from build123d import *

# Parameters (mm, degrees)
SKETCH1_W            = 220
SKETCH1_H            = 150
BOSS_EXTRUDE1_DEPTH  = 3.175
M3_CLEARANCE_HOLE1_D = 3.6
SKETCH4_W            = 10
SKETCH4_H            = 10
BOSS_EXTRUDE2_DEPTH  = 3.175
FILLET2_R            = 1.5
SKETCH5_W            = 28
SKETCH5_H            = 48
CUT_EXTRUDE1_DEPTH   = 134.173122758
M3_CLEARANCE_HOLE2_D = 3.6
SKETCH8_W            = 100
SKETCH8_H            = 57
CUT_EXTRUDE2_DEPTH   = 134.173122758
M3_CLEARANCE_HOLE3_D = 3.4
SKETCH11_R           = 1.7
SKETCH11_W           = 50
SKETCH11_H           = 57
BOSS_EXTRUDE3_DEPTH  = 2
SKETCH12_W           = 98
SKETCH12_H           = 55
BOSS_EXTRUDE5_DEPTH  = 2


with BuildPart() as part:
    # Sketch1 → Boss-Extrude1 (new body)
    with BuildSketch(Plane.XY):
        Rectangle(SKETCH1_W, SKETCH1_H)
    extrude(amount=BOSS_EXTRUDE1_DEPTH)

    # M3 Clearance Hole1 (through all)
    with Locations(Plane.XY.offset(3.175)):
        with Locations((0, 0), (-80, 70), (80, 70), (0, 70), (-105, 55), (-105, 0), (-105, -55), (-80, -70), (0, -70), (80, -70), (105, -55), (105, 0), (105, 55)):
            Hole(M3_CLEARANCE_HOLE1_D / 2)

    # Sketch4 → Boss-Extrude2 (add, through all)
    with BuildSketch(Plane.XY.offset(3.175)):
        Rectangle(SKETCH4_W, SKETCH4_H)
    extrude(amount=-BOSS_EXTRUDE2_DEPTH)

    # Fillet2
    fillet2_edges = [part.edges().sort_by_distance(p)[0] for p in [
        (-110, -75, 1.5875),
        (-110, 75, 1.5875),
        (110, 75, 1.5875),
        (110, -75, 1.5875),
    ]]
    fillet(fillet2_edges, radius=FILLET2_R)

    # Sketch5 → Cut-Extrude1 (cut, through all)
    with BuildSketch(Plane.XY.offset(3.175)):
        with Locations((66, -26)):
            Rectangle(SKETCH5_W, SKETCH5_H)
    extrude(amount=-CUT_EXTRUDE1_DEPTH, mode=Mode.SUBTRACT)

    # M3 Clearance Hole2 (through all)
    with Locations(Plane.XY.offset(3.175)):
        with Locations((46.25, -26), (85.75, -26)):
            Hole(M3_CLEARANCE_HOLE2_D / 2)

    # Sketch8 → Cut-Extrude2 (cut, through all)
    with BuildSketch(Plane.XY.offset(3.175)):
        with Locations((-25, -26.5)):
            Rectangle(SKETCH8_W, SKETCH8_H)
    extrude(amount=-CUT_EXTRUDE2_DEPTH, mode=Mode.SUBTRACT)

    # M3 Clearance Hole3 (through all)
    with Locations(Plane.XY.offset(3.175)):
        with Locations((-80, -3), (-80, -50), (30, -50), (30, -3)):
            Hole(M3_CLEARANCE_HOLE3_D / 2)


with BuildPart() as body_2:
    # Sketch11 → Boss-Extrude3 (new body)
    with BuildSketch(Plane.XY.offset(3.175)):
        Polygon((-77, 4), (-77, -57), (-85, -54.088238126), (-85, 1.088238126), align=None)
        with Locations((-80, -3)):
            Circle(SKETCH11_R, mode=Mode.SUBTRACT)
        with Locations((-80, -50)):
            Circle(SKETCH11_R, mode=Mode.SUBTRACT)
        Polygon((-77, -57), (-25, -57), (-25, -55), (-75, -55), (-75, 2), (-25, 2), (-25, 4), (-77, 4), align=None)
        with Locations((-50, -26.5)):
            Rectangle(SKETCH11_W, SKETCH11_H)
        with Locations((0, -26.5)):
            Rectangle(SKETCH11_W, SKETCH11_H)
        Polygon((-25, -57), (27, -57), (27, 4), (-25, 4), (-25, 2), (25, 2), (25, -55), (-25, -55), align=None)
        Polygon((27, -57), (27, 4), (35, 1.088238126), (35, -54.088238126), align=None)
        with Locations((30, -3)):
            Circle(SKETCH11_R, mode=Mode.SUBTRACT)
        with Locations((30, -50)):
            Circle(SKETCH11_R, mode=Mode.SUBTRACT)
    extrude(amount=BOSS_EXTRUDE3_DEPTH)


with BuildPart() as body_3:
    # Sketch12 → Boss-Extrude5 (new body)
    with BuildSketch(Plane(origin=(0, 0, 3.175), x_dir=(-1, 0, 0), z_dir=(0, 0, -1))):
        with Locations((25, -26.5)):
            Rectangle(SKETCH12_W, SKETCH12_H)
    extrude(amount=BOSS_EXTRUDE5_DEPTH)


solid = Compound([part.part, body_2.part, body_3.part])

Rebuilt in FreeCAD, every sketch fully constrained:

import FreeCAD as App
import Part
import Sketcher
Q = App.Units.Quantity


def edges_at(feature, points):
    """Names of the edges that pass closest to the given points."""
    edges = feature.Shape.Edges
    near = lambda p: min(range(len(edges)), key=lambda i: edges[i].distToShape(Part.Vertex(*p))[0])
    return sorted({f"Edge{near(p) + 1}" for p in points})


def add_polygon(sketch, points):
    """Adds a closed chain of lines whose ends are joined by coincident constraints."""
    first, n = sketch.GeometryCount, len(points)
    for a, b in zip(points, points[1:] + points[:1]):
        sketch.addGeometry(Part.LineSegment(App.Vector(*a, 0), App.Vector(*b, 0)), False)
    for i in range(n):
        sketch.addConstraint(Sketcher.Constraint("Coincident", first + i, 2, first + (i + 1) % n, 1))

doc = App.newDocument("Part")
body = doc.addObject("PartDesign::Body", "Body")

# Sketch on XY plane
sketch1 = body.newObject("Sketcher::SketchObject", "Sketch")
sketch1.AttachmentSupport = (doc.getObject("XY_Plane"), [""])
sketch1.MapMode = "FlatFace"
add_polygon(sketch1, [(-110, 75), (-110, -75), (110, -75), (110, 75)])  # lines 0-3
sketch1.addConstraint([
    Sketcher.Constraint("Vertical", 0),
    Sketcher.Constraint("Horizontal", 1),
    Sketcher.Constraint("Vertical", 2),
    Sketcher.Constraint("Horizontal", 3),
    Sketcher.Constraint("Symmetric", 0, 2, 2, 2, -1, 1),
    Sketcher.Constraint("DistanceX", 1, 1, 1, 2, 220.0),
    Sketcher.Constraint("DistanceY", 0, 2, 0, 1, 150.0),
])
pad1 = body.newObject("PartDesign::Pad", "Pad")
pad1.Profile = sketch1
pad1.Length = 3.175

# Sketch on XY plane
sketch2 = body.newObject("Sketcher::SketchObject", "Sketch001")
sketch2.AttachmentSupport = (doc.getObject("XY_Plane"), [""])
sketch2.MapMode = "FlatFace"
sketch2.AttachmentOffset = App.Placement(App.Vector(0, 0, 3.175), App.Rotation())
sketch2.addGeometry([
    Part.Circle(App.Vector(0, 0, 0), App.Vector(0, 0, 1), 1.8),  # 0
    Part.Circle(App.Vector(-80, 70, 0), App.Vector(0, 0, 1), 1.8),  # 1
    Part.Circle(App.Vector(80, 70, 0), App.Vector(0, 0, 1), 1.8),  # 2
    Part.Circle(App.Vector(0, 70, 0), App.Vector(0, 0, 1), 1.8),  # 3
    Part.Circle(App.Vector(-105, 55, 0), App.Vector(0, 0, 1), 1.8),  # 4
    Part.Circle(App.Vector(-105, 0, 0), App.Vector(0, 0, 1), 1.8),  # 5
    Part.Circle(App.Vector(-105, -55, 0), App.Vector(0, 0, 1), 1.8),  # 6
    Part.Circle(App.Vector(-80, -70, 0), App.Vector(0, 0, 1), 1.8),  # 7
    Part.Circle(App.Vector(0, -70, 0), App.Vector(0, 0, 1), 1.8),  # 8
    Part.Circle(App.Vector(80, -70, 0), App.Vector(0, 0, 1), 1.8),  # 9
    Part.Circle(App.Vector(105, -55, 0), App.Vector(0, 0, 1), 1.8),  # 10
    Part.Circle(App.Vector(105, 0, 0), App.Vector(0, 0, 1), 1.8),  # 11
    Part.Circle(App.Vector(105, 55, 0), App.Vector(0, 0, 1), 1.8),  # 12
], False)
sketch2.addConstraint([
    Sketcher.Constraint("Coincident", 0, 3, -1, 1),
    Sketcher.Constraint("Equal", 0, 1),
    Sketcher.Constraint("Equal", 1, 2),
    Sketcher.Constraint("Equal", 2, 3),
    Sketcher.Constraint("Equal", 3, 4),
    Sketcher.Constraint("Equal", 4, 5),
    Sketcher.Constraint("Equal", 5, 6),
    Sketcher.Constraint("Equal", 6, 7),
    Sketcher.Constraint("Equal", 7, 8),
    Sketcher.Constraint("Equal", 8, 9),
    Sketcher.Constraint("Equal", 9, 10),
    Sketcher.Constraint("Equal", 10, 11),
    Sketcher.Constraint("Equal", 11, 12),
    Sketcher.Constraint("Symmetric", 2, 3, 7, 3, -1, 1),
    Sketcher.Constraint("Symmetric", 3, 3, 8, 3, -1, 1),
    Sketcher.Constraint("Symmetric", 1, 3, 9, 3, -1, 1),
    Sketcher.Constraint("Symmetric", 4, 3, 10, 3, -1, 1),
    Sketcher.Constraint("Symmetric", 5, 3, 11, 3, -1, 1),
    Sketcher.Constraint("Symmetric", 6, 3, 12, 3, -1, 1),
    Sketcher.Constraint("Symmetric", 1, 3, 2, 3, -2),
    Sketcher.Constraint("Symmetric", 6, 3, 10, 3, -2),
    Sketcher.Constraint("PointOnObject", 3, 3, -2),
    Sketcher.Constraint("PointOnObject", 5, 3, -1),
    Sketcher.Constraint("Horizontal", 2, 3, 3, 3),
    Sketcher.Constraint("Vertical", 4, 3, 5, 3),
    Sketcher.Constraint("Diameter", 0, 3.6),
    Sketcher.Constraint("DistanceX", 1, 3, -1, 1, 80.0),
    Sketcher.Constraint("DistanceY", -1, 1, 1, 3, 70.0),
    Sketcher.Constraint("DistanceX", 4, 3, -1, 1, 105.0),
    Sketcher.Constraint("DistanceY", -1, 1, 4, 3, 55.0),
])
doc.recompute()
hole = body.newObject("PartDesign::Hole", "Hole")
hole.Profile = sketch2
hole.ThreadType = "None"
hole.Diameter = 3.6
hole.DepthType = "ThroughAll"

# Sketch on XY plane
sketch3 = body.newObject("Sketcher::SketchObject", "Sketch002")
sketch3.AttachmentSupport = (doc.getObject("XY_Plane"), [""])
sketch3.MapMode = "FlatFace"
sketch3.AttachmentOffset = App.Placement(App.Vector(0, 0, 3.175), App.Rotation())
add_polygon(sketch3, [(-5, 5), (-5, -5), (5, -5), (5, 5)])  # lines 0-3
sketch3.addConstraint([
    Sketcher.Constraint("Vertical", 0),
    Sketcher.Constraint("Horizontal", 1),
    Sketcher.Constraint("Vertical", 2),
    Sketcher.Constraint("Horizontal", 3),
    Sketcher.Constraint("Symmetric", 0, 2, 2, 2, -1, 1),
    Sketcher.Constraint("Equal", 3, 0),
    Sketcher.Constraint("DistanceX", 1, 1, 1, 2, 10.0),
])
pad2 = body.newObject("PartDesign::Pad", "Pad001")
pad2.Profile = sketch3
pad2.Length = 3.175
pad2.Reversed = True
doc.recompute()

fillet = body.newObject("PartDesign::Fillet", "Fillet")
fillet.Base = (pad2, edges_at(pad2, [
    (-110, -75, 1.587),
    (-110, 75, 1.587),
    (110, 75, 1.587),
    (110, -75, 1.587),
]))
fillet.Radius = 1.5

# Sketch on XY plane
sketch4 = body.newObject("Sketcher::SketchObject", "Sketch003")
sketch4.AttachmentSupport = (doc.getObject("XY_Plane"), [""])
sketch4.MapMode = "FlatFace"
sketch4.AttachmentOffset = App.Placement(App.Vector(0, 0, 3.175), App.Rotation())
add_polygon(sketch4, [(52, -2), (52, -50), (80, -50), (80, -2)])  # lines 0-3
sketch4.addConstraint([
    Sketcher.Constraint("Vertical", 0),
    Sketcher.Constraint("Horizontal", 1),
    Sketcher.Constraint("Vertical", 2),
    Sketcher.Constraint("Horizontal", 3),
    Sketcher.Constraint("DistanceX", 1, 1, 1, 2, 28.0),
    Sketcher.Constraint("DistanceY", 0, 2, 0, 1, 48.0),
    Sketcher.Constraint("DistanceX", -1, 1, 0, 2, 52.0),
    Sketcher.Constraint("DistanceY", 0, 2, -1, 1, 50.0),
])
pocket1 = body.newObject("PartDesign::Pocket", "Pocket")
pocket1.Profile = sketch4
pocket1.Type = "ThroughAll"

# Sketch on XY plane
sketch5 = body.newObject("Sketcher::SketchObject", "Sketch004")
sketch5.AttachmentSupport = (doc.getObject("XY_Plane"), [""])
sketch5.MapMode = "FlatFace"
sketch5.AttachmentOffset = App.Placement(App.Vector(0, 0, 3.175), App.Rotation())
sketch5.addGeometry([
    Part.Circle(App.Vector(46.25, -26, 0), App.Vector(0, 0, 1), 1.8),
    Part.Circle(App.Vector(85.75, -26, 0), App.Vector(0, 0, 1), 1.8),
], False)
sketch5.addConstraint([
    Sketcher.Constraint("Equal", 0, 1),
    Sketcher.Constraint("Horizontal", 0, 3, 1, 3),
    Sketcher.Constraint("Diameter", 0, 3.6),
    Sketcher.Constraint("DistanceY", 0, 3, -1, 1, 26.0),
    Sketcher.Constraint("DistanceX", 0, 3, 1, 3, 39.5),
    Sketcher.Constraint("DistanceX", -1, 1, 0, 3, 46.25),
])
doc.recompute()
hole2 = body.newObject("PartDesign::Hole", "Hole001")
hole2.Profile = sketch5
hole2.ThreadType = "None"
hole2.Diameter = 3.6
hole2.DepthType = "ThroughAll"

# Sketch on XY plane
sketch6 = body.newObject("Sketcher::SketchObject", "Sketch005")
sketch6.AttachmentSupport = (doc.getObject("XY_Plane"), [""])
sketch6.MapMode = "FlatFace"
sketch6.AttachmentOffset = App.Placement(App.Vector(0, 0, 3.175), App.Rotation())
add_polygon(sketch6, [(-75, 2), (-75, -55), (25, -55), (25, 2)])  # lines 0-3
sketch6.addConstraint([
    Sketcher.Constraint("Vertical", 0),
    Sketcher.Constraint("Horizontal", 1),
    Sketcher.Constraint("Vertical", 2),
    Sketcher.Constraint("Horizontal", 3),
    Sketcher.Constraint("DistanceX", 1, 1, 1, 2, 100.0),
    Sketcher.Constraint("DistanceY", 0, 2, 0, 1, 57.0),
    Sketcher.Constraint("DistanceX", 0, 2, -1, 1, 75.0),
    Sketcher.Constraint("DistanceY", 0, 2, -1, 1, 55.0),
])
pocket2 = body.newObject("PartDesign::Pocket", "Pocket001")
pocket2.Profile = sketch6
pocket2.Type = "ThroughAll"

# Sketch on XY plane
sketch7 = body.newObject("Sketcher::SketchObject", "Sketch006")
sketch7.AttachmentSupport = (doc.getObject("XY_Plane"), [""])
sketch7.MapMode = "FlatFace"
sketch7.AttachmentOffset = App.Placement(App.Vector(0, 0, 3.175), App.Rotation())
sketch7.addGeometry([
    Part.Circle(App.Vector(-80, -3, 0), App.Vector(0, 0, 1), 1.7),
    Part.Circle(App.Vector(-80, -50, 0), App.Vector(0, 0, 1), 1.7),
    Part.Circle(App.Vector(30, -50, 0), App.Vector(0, 0, 1), 1.7),
    Part.Circle(App.Vector(30, -3, 0), App.Vector(0, 0, 1), 1.7),
], False)
sketch7.addConstraint([
    Sketcher.Constraint("Equal", 0, 1),
    Sketcher.Constraint("Equal", 1, 2),
    Sketcher.Constraint("Equal", 2, 3),
    Sketcher.Constraint("Horizontal", 1, 3, 2, 3),
    Sketcher.Constraint("Horizontal", 0, 3, 3, 3),
    Sketcher.Constraint("Vertical", 0, 3, 1, 3),
    Sketcher.Constraint("Vertical", 2, 3, 3, 3),
    Sketcher.Constraint("Diameter", 0, 3.4),
    Sketcher.Constraint("DistanceX", 0, 3, -1, 1, 80.0),
    Sketcher.Constraint("DistanceY", 0, 3, -1, 1, 3.0),
    Sketcher.Constraint("DistanceY", 1, 3, -1, 1, 50.0),
    Sketcher.Constraint("DistanceX", -1, 1, 2, 3, 30.0),
])
doc.recompute()
hole3 = body.newObject("PartDesign::Hole", "Hole002")
hole3.Profile = sketch7
hole3.ThreadType = "None"
hole3.Diameter = 3.4
hole3.DepthType = "ThroughAll"
body2 = doc.addObject("PartDesign::Body", "Body001")

# Sketch on XY plane
sketch8 = body2.newObject("Sketcher::SketchObject", "Sketch007")
sketch8.AttachmentSupport = (doc.getObject("XY_Plane001"), [""])
sketch8.MapMode = "FlatFace"
sketch8.AttachmentOffset = App.Placement(App.Vector(0, 0, 3.175), App.Rotation())
add_polygon(sketch8, [(-77, 4), (-85, 1.088238), (-85, -54.088238), (-77, -57), (27, -57), (35, -54.088238), (35, 1.088238), (27, 4)])  # lines 0-7
sketch8.addGeometry(Part.Circle(App.Vector(30, -50, 0), App.Vector(0, 0, 1), 1.7), False)  # 8
sketch8.addGeometry(Part.Circle(App.Vector(-80, -50, 0), App.Vector(0, 0, 1), 1.7), False)  # 9
sketch8.addGeometry(Part.Circle(App.Vector(30, -3, 0), App.Vector(0, 0, 1), 1.7), False)  # 10
sketch8.addGeometry(Part.Circle(App.Vector(-80, -3, 0), App.Vector(0, 0, 1), 1.7), False)  # 11
sketch8.addConstraint([
    Sketcher.Constraint("Vertical", 1),
    Sketcher.Constraint("Horizontal", 3),
    Sketcher.Constraint("Vertical", 5),
    Sketcher.Constraint("Horizontal", 7),
    Sketcher.Constraint("Equal", 8, 9),
    Sketcher.Constraint("Equal", 9, 10),
    Sketcher.Constraint("Equal", 10, 11),
    Sketcher.Constraint("Parallel", 0, 4),
    Sketcher.Constraint("Parallel", 2, 6),
    Sketcher.Constraint("Horizontal", 8, 3, 9, 3),
    Sketcher.Constraint("Horizontal", 10, 3, 11, 3),
    Sketcher.Constraint("Horizontal", 1, 2, 4, 2),
    Sketcher.Constraint("Horizontal", 0, 2, 5, 2),
    Sketcher.Constraint("Vertical", 8, 3, 10, 3),
    Sketcher.Constraint("Vertical", 9, 3, 11, 3),
    Sketcher.Constraint("Vertical", 3, 2, 6, 2),
    Sketcher.Constraint("Vertical", 2, 2, 7, 2),
    Sketcher.Constraint("Diameter", 8, 3.4),
    Sketcher.Constraint("DistanceX", 3, 1, 3, 2, 104.0),
    Sketcher.Constraint("Angle", 0, Q("-160 deg")),
    Sketcher.Constraint("DistanceX", -1, 1, 8, 3, 30.0),
    Sketcher.Constraint("DistanceY", 8, 3, -1, 1, 50.0),
    Sketcher.Constraint("DistanceX", 9, 3, -1, 1, 80.0),
    Sketcher.Constraint("DistanceY", 10, 3, -1, 1, 3.0),
    Sketcher.Constraint("DistanceX", 0, 2, -1, 1, 85.0),
    Sketcher.Constraint("DistanceX", 2, 2, -1, 1, 77.0),
    Sketcher.Constraint("DistanceY", 2, 2, -1, 1, 57.0),
    Sketcher.Constraint("DistanceY", -1, 1, 6, 2, 4.0),
])
pad3 = body2.newObject("PartDesign::Pad", "Pad002")
pad3.Profile = sketch8
pad3.Length = 2
body3 = doc.addObject("PartDesign::Body", "Body002")

# Sketch on XY plane
sketch9 = body3.newObject("Sketcher::SketchObject", "Sketch008")
sketch9.AttachmentSupport = (doc.getObject("XY_Plane002"), [""])
sketch9.MapMode = "FlatFace"
sketch9.AttachmentOffset = App.Placement(App.Vector(0, 0, 3.175), App.Rotation())
add_polygon(sketch9, [(24, 1), (24, -54), (-74, -54), (-74, 1)])  # lines 0-3
sketch9.addConstraint([
    Sketcher.Constraint("Vertical", 0),
    Sketcher.Constraint("Horizontal", 1),
    Sketcher.Constraint("Vertical", 2),
    Sketcher.Constraint("Horizontal", 3),
    Sketcher.Constraint("DistanceX", 1, 2, 1, 1, 98.0),
    Sketcher.Constraint("DistanceY", 0, 2, 0, 1, 55.0),
    Sketcher.Constraint("DistanceX", -1, 1, 0, 2, 24.0),
    Sketcher.Constraint("DistanceY", 0, 2, -1, 1, 54.0),
])
pad4 = body3.newObject("PartDesign::Pad", "Pad003")
pad4.Profile = sketch9
pad4.Length = 2
pad4.Reversed = True

doc.recompute()
